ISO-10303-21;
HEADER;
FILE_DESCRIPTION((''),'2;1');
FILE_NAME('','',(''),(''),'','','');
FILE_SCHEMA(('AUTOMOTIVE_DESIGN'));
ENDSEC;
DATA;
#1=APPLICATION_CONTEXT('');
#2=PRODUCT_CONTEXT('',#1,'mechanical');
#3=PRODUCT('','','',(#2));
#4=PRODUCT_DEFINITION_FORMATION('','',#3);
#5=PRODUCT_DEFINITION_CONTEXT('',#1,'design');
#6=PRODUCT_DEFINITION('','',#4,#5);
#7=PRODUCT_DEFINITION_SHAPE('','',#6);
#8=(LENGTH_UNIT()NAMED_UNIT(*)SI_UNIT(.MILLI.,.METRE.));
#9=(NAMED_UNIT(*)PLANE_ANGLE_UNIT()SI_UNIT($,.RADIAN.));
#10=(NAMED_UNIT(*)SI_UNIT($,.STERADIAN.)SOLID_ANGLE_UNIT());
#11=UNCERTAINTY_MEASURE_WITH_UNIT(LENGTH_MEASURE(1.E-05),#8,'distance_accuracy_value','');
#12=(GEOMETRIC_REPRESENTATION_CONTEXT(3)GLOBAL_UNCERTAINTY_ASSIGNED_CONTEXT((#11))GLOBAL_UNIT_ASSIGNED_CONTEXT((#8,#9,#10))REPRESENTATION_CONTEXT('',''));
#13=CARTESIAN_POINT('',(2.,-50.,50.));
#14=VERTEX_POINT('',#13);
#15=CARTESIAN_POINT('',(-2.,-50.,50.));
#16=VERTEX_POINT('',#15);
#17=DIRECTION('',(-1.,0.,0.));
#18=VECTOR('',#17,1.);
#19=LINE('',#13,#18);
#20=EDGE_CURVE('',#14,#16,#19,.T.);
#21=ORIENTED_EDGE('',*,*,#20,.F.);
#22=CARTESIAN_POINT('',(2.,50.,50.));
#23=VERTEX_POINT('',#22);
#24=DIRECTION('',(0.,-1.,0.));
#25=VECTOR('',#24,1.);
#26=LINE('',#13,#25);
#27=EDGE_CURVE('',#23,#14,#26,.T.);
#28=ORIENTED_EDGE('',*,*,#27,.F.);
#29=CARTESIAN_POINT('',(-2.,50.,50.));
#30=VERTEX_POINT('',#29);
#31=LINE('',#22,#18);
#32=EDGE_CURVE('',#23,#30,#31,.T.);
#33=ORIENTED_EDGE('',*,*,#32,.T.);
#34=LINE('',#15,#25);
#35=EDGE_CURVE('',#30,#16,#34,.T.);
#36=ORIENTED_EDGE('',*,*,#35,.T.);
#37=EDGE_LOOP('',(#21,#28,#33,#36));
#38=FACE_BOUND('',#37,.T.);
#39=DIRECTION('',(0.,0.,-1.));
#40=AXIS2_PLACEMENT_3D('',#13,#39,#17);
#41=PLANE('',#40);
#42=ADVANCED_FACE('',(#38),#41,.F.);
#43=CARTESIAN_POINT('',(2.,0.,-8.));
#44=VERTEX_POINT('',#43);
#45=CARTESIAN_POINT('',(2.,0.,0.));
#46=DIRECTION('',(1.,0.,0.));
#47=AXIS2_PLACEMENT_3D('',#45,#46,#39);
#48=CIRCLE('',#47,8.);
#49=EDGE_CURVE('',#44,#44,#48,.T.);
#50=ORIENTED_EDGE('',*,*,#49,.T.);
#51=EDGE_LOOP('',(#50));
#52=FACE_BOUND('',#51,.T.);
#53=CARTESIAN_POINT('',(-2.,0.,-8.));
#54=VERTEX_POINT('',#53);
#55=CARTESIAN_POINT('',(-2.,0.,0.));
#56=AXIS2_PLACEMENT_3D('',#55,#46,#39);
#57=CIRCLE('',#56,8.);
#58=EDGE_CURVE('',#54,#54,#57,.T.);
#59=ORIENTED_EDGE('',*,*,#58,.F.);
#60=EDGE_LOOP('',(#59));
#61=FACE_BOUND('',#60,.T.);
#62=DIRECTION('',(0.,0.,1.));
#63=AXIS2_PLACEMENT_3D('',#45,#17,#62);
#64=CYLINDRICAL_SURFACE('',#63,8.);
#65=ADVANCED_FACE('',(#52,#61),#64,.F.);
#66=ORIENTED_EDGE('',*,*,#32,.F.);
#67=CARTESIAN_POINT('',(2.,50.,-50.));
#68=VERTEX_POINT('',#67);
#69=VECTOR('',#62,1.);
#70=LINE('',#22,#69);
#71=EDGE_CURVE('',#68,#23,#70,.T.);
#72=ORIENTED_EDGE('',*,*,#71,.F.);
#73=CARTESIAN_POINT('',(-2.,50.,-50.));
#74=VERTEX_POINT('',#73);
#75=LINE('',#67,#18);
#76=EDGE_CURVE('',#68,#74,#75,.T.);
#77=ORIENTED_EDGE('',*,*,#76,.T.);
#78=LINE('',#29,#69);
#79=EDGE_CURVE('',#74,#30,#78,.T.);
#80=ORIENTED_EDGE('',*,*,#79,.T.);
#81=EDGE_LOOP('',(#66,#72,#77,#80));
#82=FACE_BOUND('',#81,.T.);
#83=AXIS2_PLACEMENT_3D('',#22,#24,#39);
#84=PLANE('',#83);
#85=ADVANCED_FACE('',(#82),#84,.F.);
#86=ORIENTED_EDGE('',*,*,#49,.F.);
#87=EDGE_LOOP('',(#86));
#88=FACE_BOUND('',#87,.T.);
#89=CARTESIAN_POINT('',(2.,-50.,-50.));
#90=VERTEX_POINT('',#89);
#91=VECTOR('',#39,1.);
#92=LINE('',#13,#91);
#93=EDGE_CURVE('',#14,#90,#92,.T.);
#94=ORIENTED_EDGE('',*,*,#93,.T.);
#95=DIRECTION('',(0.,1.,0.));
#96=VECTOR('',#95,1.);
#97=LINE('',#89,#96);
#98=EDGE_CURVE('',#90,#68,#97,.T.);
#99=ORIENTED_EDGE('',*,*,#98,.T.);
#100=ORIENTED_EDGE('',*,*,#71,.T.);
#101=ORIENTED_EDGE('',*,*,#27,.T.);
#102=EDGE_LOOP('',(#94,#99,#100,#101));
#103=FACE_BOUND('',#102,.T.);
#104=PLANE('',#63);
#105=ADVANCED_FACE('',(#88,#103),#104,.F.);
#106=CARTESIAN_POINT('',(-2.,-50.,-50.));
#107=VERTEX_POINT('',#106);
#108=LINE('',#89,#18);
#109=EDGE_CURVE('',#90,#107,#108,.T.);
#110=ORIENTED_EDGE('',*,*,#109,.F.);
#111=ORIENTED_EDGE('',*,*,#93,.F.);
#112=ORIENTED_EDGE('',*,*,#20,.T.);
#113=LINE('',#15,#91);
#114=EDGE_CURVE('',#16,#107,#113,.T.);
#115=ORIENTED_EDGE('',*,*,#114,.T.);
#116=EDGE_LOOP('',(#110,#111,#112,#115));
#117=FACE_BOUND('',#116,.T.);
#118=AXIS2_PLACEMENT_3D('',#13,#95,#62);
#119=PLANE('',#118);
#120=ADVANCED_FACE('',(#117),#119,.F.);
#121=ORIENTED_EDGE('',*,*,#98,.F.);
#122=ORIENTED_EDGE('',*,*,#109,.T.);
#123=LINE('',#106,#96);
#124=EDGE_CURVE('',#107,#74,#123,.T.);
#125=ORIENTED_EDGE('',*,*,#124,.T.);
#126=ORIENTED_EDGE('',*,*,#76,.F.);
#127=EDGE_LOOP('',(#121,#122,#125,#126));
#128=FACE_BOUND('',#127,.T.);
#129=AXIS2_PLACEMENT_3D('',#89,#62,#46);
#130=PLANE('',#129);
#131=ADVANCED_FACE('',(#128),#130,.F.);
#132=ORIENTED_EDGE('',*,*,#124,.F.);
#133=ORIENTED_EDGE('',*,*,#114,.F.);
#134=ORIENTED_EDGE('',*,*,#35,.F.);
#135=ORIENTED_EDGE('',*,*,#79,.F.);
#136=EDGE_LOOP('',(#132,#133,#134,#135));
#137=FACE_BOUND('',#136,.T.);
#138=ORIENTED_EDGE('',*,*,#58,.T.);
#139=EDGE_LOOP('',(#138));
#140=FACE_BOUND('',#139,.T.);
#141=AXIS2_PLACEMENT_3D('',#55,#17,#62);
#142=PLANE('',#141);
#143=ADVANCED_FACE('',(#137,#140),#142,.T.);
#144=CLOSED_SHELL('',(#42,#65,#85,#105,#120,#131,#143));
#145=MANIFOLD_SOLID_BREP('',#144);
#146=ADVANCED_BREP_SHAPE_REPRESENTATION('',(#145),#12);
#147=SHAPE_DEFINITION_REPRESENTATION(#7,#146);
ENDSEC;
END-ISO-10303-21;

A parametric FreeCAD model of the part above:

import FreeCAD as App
import Part
import Sketcher

V = App.Vector


def add_polygon(sketch, points):
    """Adds a closed chain of lines whose ends are joined by coincident constraints."""
    first, n = sketch.GeometryCount, len(points)
    for a, b in zip(points, points[1:] + points[:1]):
        sketch.addGeometry(Part.LineSegment(App.Vector(*a, 0), App.Vector(*b, 0)), False)
    for i in range(n):
        sketch.addConstraint(Sketcher.Constraint("Coincident", first + i, 2, first + (i + 1) % n, 1))

doc = App.newDocument("Part")
body = doc.addObject("PartDesign::Body", "Body")

sketch1 = body.newObject("Sketcher::SketchObject", "Sketch")
sketch1.AttachmentSupport = (doc.getObject("YZ_Plane"), [""])
sketch1.MapMode = "FlatFace"
add_polygon(sketch1, [(50, 50), (-50, 50), (-50, -50), (50, -50)])
sketch1.addGeometry(Part.Circle(V(0, 0, 0), V(0, 0, 1), 8), False)
sketch1.addConstraint([
    Sketcher.Constraint("Horizontal", 0),
    Sketcher.Constraint("Vertical", 1),
    Sketcher.Constraint("Horizontal", 2),
    Sketcher.Constraint("Vertical", 3),
    Sketcher.Constraint("Coincident", 4, 3, -1, 1),
    Sketcher.Constraint("Symmetric", 0, 2, 2, 2, -1, 1),
    Sketcher.Constraint("Equal", 2, 1),
    Sketcher.Constraint("Diameter", 4, 16.0),
    Sketcher.Constraint("DistanceX", 0, 2, 0, 1, 100.0),
])
pad1 = body.newObject("PartDesign::Pad", "Pad")
pad1.Profile = sketch1
pad1.Length = 4
pad1.Midplane = True

doc.recompute()
